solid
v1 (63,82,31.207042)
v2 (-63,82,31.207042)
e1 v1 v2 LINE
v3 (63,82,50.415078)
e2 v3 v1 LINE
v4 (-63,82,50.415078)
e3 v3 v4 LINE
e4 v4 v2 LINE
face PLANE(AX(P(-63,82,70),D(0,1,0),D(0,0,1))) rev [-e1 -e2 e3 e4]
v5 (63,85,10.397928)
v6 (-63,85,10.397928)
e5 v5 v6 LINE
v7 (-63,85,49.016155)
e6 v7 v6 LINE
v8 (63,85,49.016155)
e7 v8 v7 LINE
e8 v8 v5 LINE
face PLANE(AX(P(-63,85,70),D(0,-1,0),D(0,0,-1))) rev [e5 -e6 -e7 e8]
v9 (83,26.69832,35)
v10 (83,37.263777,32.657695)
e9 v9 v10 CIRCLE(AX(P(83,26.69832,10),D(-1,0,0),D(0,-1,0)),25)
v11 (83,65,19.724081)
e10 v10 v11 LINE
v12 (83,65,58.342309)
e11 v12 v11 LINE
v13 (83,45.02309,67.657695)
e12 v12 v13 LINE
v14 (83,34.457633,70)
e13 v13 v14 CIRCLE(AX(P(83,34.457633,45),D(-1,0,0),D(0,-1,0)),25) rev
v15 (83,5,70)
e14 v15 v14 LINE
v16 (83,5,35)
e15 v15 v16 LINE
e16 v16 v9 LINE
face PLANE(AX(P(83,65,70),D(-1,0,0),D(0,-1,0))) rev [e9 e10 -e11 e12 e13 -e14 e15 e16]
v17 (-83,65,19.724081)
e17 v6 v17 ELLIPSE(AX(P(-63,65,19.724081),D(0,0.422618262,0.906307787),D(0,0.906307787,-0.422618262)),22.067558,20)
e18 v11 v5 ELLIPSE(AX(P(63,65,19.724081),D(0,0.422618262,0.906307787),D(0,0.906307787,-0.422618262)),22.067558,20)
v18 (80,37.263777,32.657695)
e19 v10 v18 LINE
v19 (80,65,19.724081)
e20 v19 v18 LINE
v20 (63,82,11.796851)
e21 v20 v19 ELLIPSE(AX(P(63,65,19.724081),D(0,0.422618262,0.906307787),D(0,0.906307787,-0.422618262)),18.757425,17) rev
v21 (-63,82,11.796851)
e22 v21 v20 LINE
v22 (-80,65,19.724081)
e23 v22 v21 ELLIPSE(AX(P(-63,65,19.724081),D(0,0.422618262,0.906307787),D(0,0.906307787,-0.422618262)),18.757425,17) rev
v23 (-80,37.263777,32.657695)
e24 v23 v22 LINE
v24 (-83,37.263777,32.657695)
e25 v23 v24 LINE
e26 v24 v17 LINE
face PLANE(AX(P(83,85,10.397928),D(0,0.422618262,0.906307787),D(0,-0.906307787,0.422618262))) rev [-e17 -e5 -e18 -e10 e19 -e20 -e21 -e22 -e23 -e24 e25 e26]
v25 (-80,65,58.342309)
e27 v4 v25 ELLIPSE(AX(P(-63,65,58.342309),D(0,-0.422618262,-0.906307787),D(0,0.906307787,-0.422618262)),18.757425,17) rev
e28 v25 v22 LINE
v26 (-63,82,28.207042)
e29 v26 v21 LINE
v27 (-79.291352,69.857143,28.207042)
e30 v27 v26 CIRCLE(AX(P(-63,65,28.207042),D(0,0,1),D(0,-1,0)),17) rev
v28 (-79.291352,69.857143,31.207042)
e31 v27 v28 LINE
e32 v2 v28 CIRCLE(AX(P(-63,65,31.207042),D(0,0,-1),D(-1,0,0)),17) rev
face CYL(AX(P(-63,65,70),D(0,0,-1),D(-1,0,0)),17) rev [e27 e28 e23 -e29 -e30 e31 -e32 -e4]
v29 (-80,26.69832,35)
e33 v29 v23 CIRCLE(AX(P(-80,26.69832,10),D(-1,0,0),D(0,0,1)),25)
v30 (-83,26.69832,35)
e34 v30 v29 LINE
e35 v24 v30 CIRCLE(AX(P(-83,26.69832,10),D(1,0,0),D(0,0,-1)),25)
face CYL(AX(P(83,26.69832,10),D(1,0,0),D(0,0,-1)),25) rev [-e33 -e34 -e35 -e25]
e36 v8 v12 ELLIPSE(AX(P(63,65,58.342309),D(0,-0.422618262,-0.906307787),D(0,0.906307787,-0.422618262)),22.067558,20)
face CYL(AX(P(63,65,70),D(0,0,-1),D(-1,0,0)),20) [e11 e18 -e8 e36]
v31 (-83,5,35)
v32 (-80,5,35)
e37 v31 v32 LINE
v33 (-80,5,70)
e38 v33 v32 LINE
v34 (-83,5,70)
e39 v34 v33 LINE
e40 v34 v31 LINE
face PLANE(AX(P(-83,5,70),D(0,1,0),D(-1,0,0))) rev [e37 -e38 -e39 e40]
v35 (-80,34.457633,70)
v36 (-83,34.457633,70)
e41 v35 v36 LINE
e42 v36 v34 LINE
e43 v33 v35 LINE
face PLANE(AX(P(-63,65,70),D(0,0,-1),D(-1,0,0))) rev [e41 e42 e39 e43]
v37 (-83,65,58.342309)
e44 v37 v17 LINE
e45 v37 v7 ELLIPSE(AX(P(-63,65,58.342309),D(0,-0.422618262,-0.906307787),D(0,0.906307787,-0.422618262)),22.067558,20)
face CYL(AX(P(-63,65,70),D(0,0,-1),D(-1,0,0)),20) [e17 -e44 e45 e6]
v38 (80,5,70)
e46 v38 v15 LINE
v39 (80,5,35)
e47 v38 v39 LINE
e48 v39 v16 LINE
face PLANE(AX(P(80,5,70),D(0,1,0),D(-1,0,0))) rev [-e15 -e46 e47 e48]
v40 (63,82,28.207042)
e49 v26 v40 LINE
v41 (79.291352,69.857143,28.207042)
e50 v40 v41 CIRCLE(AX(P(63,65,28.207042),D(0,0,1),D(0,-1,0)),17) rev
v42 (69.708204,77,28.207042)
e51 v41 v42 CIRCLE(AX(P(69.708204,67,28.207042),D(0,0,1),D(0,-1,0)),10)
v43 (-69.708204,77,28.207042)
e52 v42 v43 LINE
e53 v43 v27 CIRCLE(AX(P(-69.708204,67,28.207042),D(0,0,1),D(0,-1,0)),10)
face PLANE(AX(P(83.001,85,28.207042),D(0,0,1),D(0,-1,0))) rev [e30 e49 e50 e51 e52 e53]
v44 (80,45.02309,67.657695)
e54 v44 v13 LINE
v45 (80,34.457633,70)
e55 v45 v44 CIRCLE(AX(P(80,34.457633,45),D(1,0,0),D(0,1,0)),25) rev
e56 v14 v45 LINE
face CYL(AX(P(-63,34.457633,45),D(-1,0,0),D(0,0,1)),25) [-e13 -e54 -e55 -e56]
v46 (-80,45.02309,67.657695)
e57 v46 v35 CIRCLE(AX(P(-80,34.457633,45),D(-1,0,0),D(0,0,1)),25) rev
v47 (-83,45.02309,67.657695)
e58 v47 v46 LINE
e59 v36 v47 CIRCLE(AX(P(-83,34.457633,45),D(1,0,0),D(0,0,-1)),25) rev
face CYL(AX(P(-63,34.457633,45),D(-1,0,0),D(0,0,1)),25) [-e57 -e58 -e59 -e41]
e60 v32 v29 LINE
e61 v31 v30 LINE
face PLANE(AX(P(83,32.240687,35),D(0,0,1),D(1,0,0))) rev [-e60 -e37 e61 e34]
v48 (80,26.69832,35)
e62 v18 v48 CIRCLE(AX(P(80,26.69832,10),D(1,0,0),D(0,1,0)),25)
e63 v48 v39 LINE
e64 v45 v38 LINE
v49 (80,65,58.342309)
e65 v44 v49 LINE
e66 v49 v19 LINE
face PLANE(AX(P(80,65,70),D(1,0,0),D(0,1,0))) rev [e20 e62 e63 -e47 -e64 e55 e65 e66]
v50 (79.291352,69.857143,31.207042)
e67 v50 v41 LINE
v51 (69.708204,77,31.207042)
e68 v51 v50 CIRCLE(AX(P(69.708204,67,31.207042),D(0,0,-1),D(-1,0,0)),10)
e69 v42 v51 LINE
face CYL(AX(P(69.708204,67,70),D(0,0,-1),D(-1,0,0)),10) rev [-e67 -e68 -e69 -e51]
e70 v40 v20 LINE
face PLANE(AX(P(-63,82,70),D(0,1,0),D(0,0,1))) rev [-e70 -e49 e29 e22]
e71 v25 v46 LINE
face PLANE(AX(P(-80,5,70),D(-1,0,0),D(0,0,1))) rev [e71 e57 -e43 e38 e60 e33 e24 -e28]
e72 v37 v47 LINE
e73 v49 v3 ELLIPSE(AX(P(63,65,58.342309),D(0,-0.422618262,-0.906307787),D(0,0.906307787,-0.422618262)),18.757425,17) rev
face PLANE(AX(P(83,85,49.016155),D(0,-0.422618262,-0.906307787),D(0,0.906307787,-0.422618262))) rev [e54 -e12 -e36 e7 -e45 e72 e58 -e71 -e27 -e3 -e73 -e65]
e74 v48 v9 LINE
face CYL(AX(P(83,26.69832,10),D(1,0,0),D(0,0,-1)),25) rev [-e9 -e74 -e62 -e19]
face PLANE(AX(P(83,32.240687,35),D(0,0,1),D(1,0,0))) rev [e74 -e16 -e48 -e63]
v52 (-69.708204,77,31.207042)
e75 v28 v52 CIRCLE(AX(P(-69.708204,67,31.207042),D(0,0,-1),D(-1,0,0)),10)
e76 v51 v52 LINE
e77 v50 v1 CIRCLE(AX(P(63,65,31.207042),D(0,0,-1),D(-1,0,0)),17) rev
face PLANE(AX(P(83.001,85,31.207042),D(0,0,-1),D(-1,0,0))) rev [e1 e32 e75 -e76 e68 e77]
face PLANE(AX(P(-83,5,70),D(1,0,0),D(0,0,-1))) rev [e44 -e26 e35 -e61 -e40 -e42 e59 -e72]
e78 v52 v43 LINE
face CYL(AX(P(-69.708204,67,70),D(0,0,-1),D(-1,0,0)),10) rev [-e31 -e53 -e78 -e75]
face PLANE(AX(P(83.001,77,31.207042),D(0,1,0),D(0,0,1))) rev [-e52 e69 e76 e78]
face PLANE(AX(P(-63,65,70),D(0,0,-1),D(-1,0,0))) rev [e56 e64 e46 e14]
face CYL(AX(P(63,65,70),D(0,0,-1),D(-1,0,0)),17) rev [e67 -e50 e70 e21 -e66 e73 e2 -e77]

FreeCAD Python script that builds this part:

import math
import FreeCAD as App
import Part
import Sketcher

V = App.Vector
Q = App.Units.Quantity


def edges_at(feature, points):
    """Names of the edges that pass closest to the given points."""
    edges = feature.Shape.Edges
    near = lambda p: min(range(len(edges)), key=lambda i: edges[i].distToShape(Part.Vertex(*p))[0])
    return sorted({f"Edge{near(p) + 1}" for p in points})


def add_polygon(sketch, points):
    """Adds a closed chain of lines whose ends are joined by coincident constraints."""
    first, n = sketch.GeometryCount, len(points)
    for a, b in zip(points, points[1:] + points[:1]):
        sketch.addGeometry(Part.LineSegment(App.Vector(*a, 0), App.Vector(*b, 0)), False)
    for i in range(n):
        sketch.addConstraint(Sketcher.Constraint("Coincident", first + i, 2, first + (i + 1) % n, 1))

doc = App.newDocument("Part")
body = doc.addObject("PartDesign::Body", "Body")

sketch1 = body.newObject("Sketcher::SketchObject", "Sketch")
sketch1.AttachmentSupport = (doc.getObject("XY_Plane"), [""])
sketch1.MapMode = "FlatFace"
sketch1.addGeometry([
    Part.LineSegment(V(-83, 65, 0), V(-83, 5, 0)),
    Part.LineSegment(V(-83, 5, 0), V(-80, 5, 0)),
    Part.LineSegment(V(-80, 5, 0), V(-80, 65, 0)),
    Part.ArcOfCircle(Part.Circle(V(-63, 65, 0), V(0, 0, 1), 17), math.radians(90), math.radians(180)),
    Part.LineSegment(V(-63, 82, 0), V(63, 82, 0)),
    Part.ArcOfCircle(Part.Circle(V(63, 65, 0), V(0, 0, 1), 17), math.radians(0), math.radians(90)),
    Part.LineSegment(V(80, 65, 0), V(80, 5, 0)),
    Part.LineSegment(V(80, 5, 0), V(83, 5, 0)),
    Part.LineSegment(V(83, 5, 0), V(83, 65, 0)),
    Part.ArcOfCircle(Part.Circle(V(63, 65, 0), V(0, 0, 1), 20), math.radians(0), math.radians(90)),
    Part.LineSegment(V(63, 85, 0), V(-63, 85, 0)),
    Part.ArcOfCircle(Part.Circle(V(-63, 65, 0), V(0, 0, 1), 20), math.radians(90), math.radians(180)),
], False)
sketch1.addConstraint([
    Sketcher.Constraint("Coincident", 0, 2, 1, 1),
    Sketcher.Constraint("Coincident", 1, 2, 2, 1),
    Sketcher.Constraint("Tangent", 2, 2, 3, 2),
    Sketcher.Constraint("Tangent", 3, 1, 4, 1),
    Sketcher.Constraint("Tangent", 4, 2, 5, 2),
    Sketcher.Constraint("Tangent", 5, 1, 6, 1),
    Sketcher.Constraint("Coincident", 6, 2, 7, 1),
    Sketcher.Constraint("Coincident", 7, 2, 8, 1),
    Sketcher.Constraint("Tangent", 8, 2, 9, 1),
    Sketcher.Constraint("Tangent", 9, 2, 10, 1),
    Sketcher.Constraint("Tangent", 10, 2, 11, 1),
    Sketcher.Constraint("Tangent", 11, 2, 0, 1),
    Sketcher.Constraint("Vertical", 0),
    Sketcher.Constraint("Horizontal", 1),
    Sketcher.Constraint("Vertical", 2),
    Sketcher.Constraint("Horizontal", 4),
    Sketcher.Constraint("Vertical", 6),
    Sketcher.Constraint("Horizontal", 7),
    Sketcher.Constraint("Vertical", 8),
    Sketcher.Constraint("Horizontal", 10),
    Sketcher.Constraint("Coincident", 9, 3, 5, 3),
    Sketcher.Constraint("Coincident", 11, 3, 3, 3),
    Sketcher.Constraint("Equal", 3, 5),
    Sketcher.Constraint("Symmetric", 1, 2, 6, 2, -2),
    Sketcher.Constraint("Radius", 3, 17.0),
    Sketcher.Constraint("Radius", 9, 20.0),
    Sketcher.Constraint("DistanceX", 4, 1, 4, 2, 126.0),
    Sketcher.Constraint("DistanceY", 0, 2, 0, 1, 60.0),
    Sketcher.Constraint("DistanceY", -1, 1, 3, 3, 65.0),
])
pad1 = body.newObject("PartDesign::Pad", "Pad")
pad1.Profile = sketch1
pad1.Length = 70

sketch2 = body.newObject("Sketcher::SketchObject", "Sketch001")
sketch2.AttachmentSupport = (doc.getObject("YZ_Plane"), [""])
sketch2.MapMode = "FlatFace"
sketch2.AttachmentOffset = App.Placement(V(0, 0, -83), App.Rotation())
add_polygon(sketch2, [(85, 49.016155), (40, 70), (85, 70)])
add_polygon(sketch2, [(32.240687, 35), (85, 10.397928), (85, 0), (4.870884, 0), (4.870884, 35)])
sketch2.addConstraint([
    Sketcher.Constraint("Horizontal", 1),
    Sketcher.Constraint("Vertical", 2),
    Sketcher.Constraint("Vertical", 4),
    Sketcher.Constraint("Horizontal", 5),
    Sketcher.Constraint("Vertical", 6),
    Sketcher.Constraint("Horizontal", 7),
    Sketcher.Constraint("PointOnObject", 4, 2, -1),
    Sketcher.Constraint("Parallel", 0, 3),
    Sketcher.Constraint("Vertical", 2, 2, 3, 2),
    Sketcher.Constraint("DistanceX", 1, 1, 1, 2, 45.0),
    Sketcher.Constraint("DistanceY", 6, 1, 6, 2, 35.0),
    Sketcher.Constraint("Angle", 0, Q("155 deg")),
    Sketcher.Constraint("DistanceX", -1, 1, 0, 2, 40.0),
    Sketcher.Constraint("DistanceY", -1, 1, 0, 2, 70.0),
    Sketcher.Constraint("DistanceY", 4, 2, 4, 1, 10.397928),
    Sketcher.Constraint("DistanceX", 5, 2, 5, 1, 80.129116),
])
pocket1 = body.newObject("PartDesign::Pocket", "Pocket")
pocket1.Profile = sketch2
pocket1.Type = "ThroughAll"
pocket1.Reversed = True
doc.recompute()

fillet = body.newObject("PartDesign::Fillet", "Fillet")
fillet.Base = (pocket1, edges_at(pocket1, [
    (-81.5, 40, 70),
    (81.5, 40, 70),
    (-81.5, 32.241, 35),
    (81.5, 32.241, 35),
]))
fillet.Radius = 25

sketch3 = body.newObject("Sketcher::SketchObject", "Sketch002")
sketch3.AttachmentSupport = (doc.getObject("YZ_Plane"), [""])
sketch3.MapMode = "FlatFace"
add_polygon(sketch3, [(85, 31.207042), (77, 31.207042), (77, 28.207042), (85, 28.207042)])
sketch3.addConstraint([
    Sketcher.Constraint("Horizontal", 0),
    Sketcher.Constraint("Vertical", 1),
    Sketcher.Constraint("Horizontal", 2),
    Sketcher.Constraint("Vertical", 3),
    Sketcher.Constraint("DistanceX", 0, 2, 0, 1, 8.0),
    Sketcher.Constraint("DistanceY", 1, 2, 1, 1, 3.0),
    Sketcher.Constraint("DistanceX", -1, 1, 0, 2, 77.0),
    Sketcher.Constraint("DistanceY", -1, 1, 0, 2, 31.207042),
])
pad2 = body.newObject("PartDesign::Pad", "Pad001")
pad2.Profile = sketch3
pad2.Type = "UpToFirst"

sketch4 = body.newObject("Sketcher::SketchObject", "Sketch003")
sketch4.AttachmentSupport = (doc.getObject("YZ_Plane"), [""])
sketch4.MapMode = "FlatFace"
add_polygon(sketch4, [(85, 31.207042), (77, 31.207042), (77, 28.207042), (85, 28.207042)])
sketch4.addConstraint([
    Sketcher.Constraint("Horizontal", 0),
    Sketcher.Constraint("Vertical", 1),
    Sketcher.Constraint("Horizontal", 2),
    Sketcher.Constraint("Vertical", 3),
    Sketcher.Constraint("DistanceX", 0, 2, 0, 1, 8.0),
    Sketcher.Constraint("DistanceY", 1, 2, 1, 1, 3.0),
    Sketcher.Constraint("DistanceX", -1, 1, 0, 2, 77.0),
    Sketcher.Constraint("DistanceY", -1, 1, 0, 2, 31.207042),
])
pad3 = body.newObject("PartDesign::Pad", "Pad002")
pad3.Profile = sketch4
pad3.Type = "UpToFirst"
pad3.Reversed = True
doc.recompute()

fillet2 = body.newObject("PartDesign::Fillet", "Fillet001")
fillet2.Base = (pad3, edges_at(pad3, [(-75.042, 77, 29.707), (75.042, 77, 29.707)]))
fillet2.Radius = 10

doc.recompute()
